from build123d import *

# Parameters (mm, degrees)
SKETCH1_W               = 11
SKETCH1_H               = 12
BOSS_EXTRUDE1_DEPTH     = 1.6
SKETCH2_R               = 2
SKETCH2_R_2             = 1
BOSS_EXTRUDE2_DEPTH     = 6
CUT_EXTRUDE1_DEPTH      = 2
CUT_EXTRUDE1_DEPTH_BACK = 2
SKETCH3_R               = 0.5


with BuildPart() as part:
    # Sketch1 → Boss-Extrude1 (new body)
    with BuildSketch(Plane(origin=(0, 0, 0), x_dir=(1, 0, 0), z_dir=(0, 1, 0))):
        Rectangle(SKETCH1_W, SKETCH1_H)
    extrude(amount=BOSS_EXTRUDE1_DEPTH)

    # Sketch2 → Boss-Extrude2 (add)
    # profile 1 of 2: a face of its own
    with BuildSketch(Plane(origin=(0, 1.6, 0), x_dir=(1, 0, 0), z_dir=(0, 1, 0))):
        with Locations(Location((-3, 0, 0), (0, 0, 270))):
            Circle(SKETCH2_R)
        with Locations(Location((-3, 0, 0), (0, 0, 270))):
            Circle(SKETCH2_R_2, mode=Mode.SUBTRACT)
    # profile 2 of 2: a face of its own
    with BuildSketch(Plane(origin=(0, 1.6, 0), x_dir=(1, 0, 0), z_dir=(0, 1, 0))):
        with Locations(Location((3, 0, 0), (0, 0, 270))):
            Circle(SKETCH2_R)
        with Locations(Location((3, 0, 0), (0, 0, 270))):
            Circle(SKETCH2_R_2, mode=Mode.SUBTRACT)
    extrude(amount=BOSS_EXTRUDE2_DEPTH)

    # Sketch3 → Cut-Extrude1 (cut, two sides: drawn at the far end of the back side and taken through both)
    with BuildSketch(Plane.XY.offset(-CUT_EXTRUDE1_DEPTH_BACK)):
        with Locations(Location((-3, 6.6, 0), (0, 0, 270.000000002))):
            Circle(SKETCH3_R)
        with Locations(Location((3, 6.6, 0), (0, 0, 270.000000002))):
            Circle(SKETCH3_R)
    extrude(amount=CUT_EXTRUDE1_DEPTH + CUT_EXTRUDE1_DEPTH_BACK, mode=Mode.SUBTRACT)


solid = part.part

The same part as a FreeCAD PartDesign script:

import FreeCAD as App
import Part
import Sketcher
from FreeCAD import Vector
Q = App.Units.Quantity

doc = App.newDocument("Part")
body = doc.addObject("PartDesign::Body", "Body")

# Sketch on XZ plane
sketch1 = body.newObject("Sketcher::SketchObject", "Sketch")
sketch1.AttachmentSupport = (doc.getObject("XZ_Plane"), [""])
sketch1.MapMode = "FlatFace"
sketch1.addGeometry([
    Part.LineSegment(Vector(-6, -6, 0), Vector(-6, 6, 0)),
    Part.LineSegment(Vector(-6, 6, 0), Vector(6, 6, 0)),
    Part.LineSegment(Vector(6, 6, 0), Vector(6, -6, 0)),
    Part.LineSegment(Vector(6, -6, 0), Vector(-6, -6, 0)),
], False)
sketch1.addConstraint([
    Sketcher.Constraint("Coincident", 0, 2, 1, 1),
    Sketcher.Constraint("Coincident", 1, 2, 2, 1),
    Sketcher.Constraint("Coincident", 2, 2, 3, 1),
    Sketcher.Constraint("Coincident", 3, 2, 0, 1),
    Sketcher.Constraint("Vertical", 0),
    Sketcher.Constraint("Horizontal", 1),
    Sketcher.Constraint("Vertical", 2),
    Sketcher.Constraint("Horizontal", 3),
    Sketcher.Constraint("Symmetric", 0, 2, 2, 2, -1, 1),
    Sketcher.Constraint("DistanceX", 1, 1, 1, 2, Q("11 mm")),
    Sketcher.Constraint("DistanceY", 0, 1, 0, 2, Q("12 mm")),
])
pad1 = body.newObject("PartDesign::Pad", "Pad")
pad1.Profile = sketch1
pad1.Length = 1.6
pad1.Reversed = True

# Sketch on XZ plane
sketch2 = body.newObject("Sketcher::SketchObject", "Sketch001")
sketch2.AttachmentSupport = (doc.getObject("XZ_Plane"), [""])
sketch2.MapMode = "FlatFace"
sketch2.AttachmentOffset = App.Placement(Vector(0, 0, -1.6), App.Rotation())
sketch2.addGeometry([
    Part.Circle(Vector(-3, 0, 0), Vector(0, 0, 1), 2),
    Part.Circle(Vector(-3, 0, 0), Vector(0, 0, 1), 1),
    Part.Circle(Vector(3, 0, 0), Vector(0, 0, 1), 2),
    Part.Circle(Vector(3, 0, 0), Vector(0, 0, 1), 1),
], False)
sketch2.addConstraint([
    Sketcher.Constraint("Coincident", 1, 3, 0, 3),
    Sketcher.Constraint("Coincident", 3, 3, 2, 3),
    Sketcher.Constraint("Equal", 0, 2),
    Sketcher.Constraint("Equal", 1, 3),
    Sketcher.Constraint("Symmetric", 0, 3, 2, 3, -1, 1),
    Sketcher.Constraint("PointOnObject", 0, 3, -1),
    Sketcher.Constraint("Diameter", 0, Q("4 mm")),
    Sketcher.Constraint("Diameter", 1, Q("2 mm")),
    Sketcher.Constraint("DistanceX", 0, 3, -1, 1, Q("3 mm")),
])
pad2 = body.newObject("PartDesign::Pad", "Pad001")
pad2.Profile = sketch2
pad2.Length = 6
pad2.Reversed = True

# Sketch on XY plane
sketch3 = body.newObject("Sketcher::SketchObject", "Sketch002")
sketch3.AttachmentSupport = (doc.getObject("XY_Plane"), [""])
sketch3.MapMode = "FlatFace"
sketch3.addGeometry([
    Part.Circle(Vector(-3, 6.6, 0), Vector(0, 0, 1), 0.5),
    Part.Circle(Vector(3, 6.6, 0), Vector(0, 0, 1), 0.5),
], False)
sketch3.addConstraint([
    Sketcher.Constraint("Equal", 0, 1),
    Sketcher.Constraint("Symmetric", 0, 3, 1, 3, -2),
    Sketcher.Constraint("Diameter", 0, Q("1 mm")),
    Sketcher.Constraint("DistanceX", 0, 3, -1, 1, Q("3 mm")),
    Sketcher.Constraint("DistanceY", -1, 1, 0, 3, Q("6.6 mm")),
])
pocket1 = body.newObject("PartDesign::Pocket", "Pocket")
pocket1.Profile = sketch3
pocket1.Type = "ThroughAll"
pocket1.Midplane = True

doc.recompute()
